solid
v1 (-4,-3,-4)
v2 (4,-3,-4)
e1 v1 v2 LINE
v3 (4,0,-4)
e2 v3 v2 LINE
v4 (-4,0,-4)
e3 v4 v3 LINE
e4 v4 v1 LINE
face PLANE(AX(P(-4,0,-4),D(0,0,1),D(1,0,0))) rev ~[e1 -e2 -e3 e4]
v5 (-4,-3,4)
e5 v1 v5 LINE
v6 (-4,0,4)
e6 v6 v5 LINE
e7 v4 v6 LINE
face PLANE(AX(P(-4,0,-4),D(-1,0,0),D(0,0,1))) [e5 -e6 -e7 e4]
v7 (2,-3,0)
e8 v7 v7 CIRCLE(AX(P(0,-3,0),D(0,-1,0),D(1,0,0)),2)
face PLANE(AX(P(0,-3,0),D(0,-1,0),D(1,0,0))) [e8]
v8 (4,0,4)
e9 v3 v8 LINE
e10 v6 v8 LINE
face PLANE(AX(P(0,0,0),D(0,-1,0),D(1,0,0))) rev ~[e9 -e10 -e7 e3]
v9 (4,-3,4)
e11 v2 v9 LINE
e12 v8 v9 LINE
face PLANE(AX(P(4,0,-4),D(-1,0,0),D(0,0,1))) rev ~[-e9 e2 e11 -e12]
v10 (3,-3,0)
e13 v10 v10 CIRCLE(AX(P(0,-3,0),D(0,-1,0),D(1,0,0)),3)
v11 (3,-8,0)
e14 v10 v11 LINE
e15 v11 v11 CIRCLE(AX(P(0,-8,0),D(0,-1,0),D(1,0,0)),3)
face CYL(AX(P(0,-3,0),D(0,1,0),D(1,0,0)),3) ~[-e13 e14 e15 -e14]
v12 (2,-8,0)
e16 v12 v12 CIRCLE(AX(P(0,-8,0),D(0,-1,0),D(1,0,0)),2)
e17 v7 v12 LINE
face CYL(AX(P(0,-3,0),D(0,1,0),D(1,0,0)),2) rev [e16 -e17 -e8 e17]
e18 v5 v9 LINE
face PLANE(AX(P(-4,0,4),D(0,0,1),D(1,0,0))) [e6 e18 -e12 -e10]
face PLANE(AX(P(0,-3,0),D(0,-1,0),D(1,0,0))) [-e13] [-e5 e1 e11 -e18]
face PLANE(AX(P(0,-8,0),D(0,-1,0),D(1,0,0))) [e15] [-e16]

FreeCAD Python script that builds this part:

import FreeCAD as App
import Part
import Sketcher

V = App.Vector
Q = App.Units.Quantity


def add_polygon(sketch, points):
    """Adds a closed chain of lines whose ends are joined by coincident constraints."""
    first, n = sketch.GeometryCount, len(points)
    for a, b in zip(points, points[1:] + points[:1]):
        sketch.addGeometry(Part.LineSegment(App.Vector(*a, 0), App.Vector(*b, 0)), False)
    for i in range(n):
        sketch.addConstraint(Sketcher.Constraint("Coincident", first + i, 2, first + (i + 1) % n, 1))

doc = App.newDocument("Part")
body = doc.addObject("PartDesign::Body", "Body")

# Sketch on XZ plane
sketch1 = body.newObject("Sketcher::SketchObject", "Sketch")
sketch1.AttachmentSupport = (doc.getObject("XZ_Plane"), [""])
sketch1.MapMode = "FlatFace"
add_polygon(sketch1, [(-4, 4), (-4, -4), (4, -4), (4, 4)])  # lines 0-3
sketch1.addConstraint([
    Sketcher.Constraint("Vertical", 0),
    Sketcher.Constraint("Horizontal", 1),
    Sketcher.Constraint("Vertical", 2),
    Sketcher.Constraint("Horizontal", 3),
    Sketcher.Constraint("Symmetric", 0, 2, 2, 2, -1, 1),
    Sketcher.Constraint("Equal", 3, 0),
    Sketcher.Constraint("DistanceX", 1, 1, 1, 2, Q("8 mm")),
])
pad1 = body.newObject("PartDesign::Pad", "Pad")
pad1.Profile = sketch1
pad1.Length = 3

# Sketch on XZ plane
sketch2 = body.newObject("Sketcher::SketchObject", "Sketch001")
sketch2.AttachmentSupport = (doc.getObject("XZ_Plane"), [""])
sketch2.MapMode = "FlatFace"
sketch2.AttachmentOffset = App.Placement(V(0, 0, 3), App.Rotation())
sketch2.addGeometry([
    Part.Circle(V(0, 0, 0), V(0, 0, 1), 3),
    Part.Circle(V(0, 0, 0), V(0, 0, 1), 2),
], False)
sketch2.addConstraint([
    Sketcher.Constraint("Coincident", 0, 3, -1, 1),
    Sketcher.Constraint("Coincident", 1, 3, -1, 1),
    Sketcher.Constraint("Diameter", 0, Q("6 mm")),
    Sketcher.Constraint("Diameter", 1, Q("4 mm")),
])
pad2 = body.newObject("PartDesign::Pad", "Pad001")
pad2.Profile = sketch2
pad2.Length = 5

doc.recompute()
